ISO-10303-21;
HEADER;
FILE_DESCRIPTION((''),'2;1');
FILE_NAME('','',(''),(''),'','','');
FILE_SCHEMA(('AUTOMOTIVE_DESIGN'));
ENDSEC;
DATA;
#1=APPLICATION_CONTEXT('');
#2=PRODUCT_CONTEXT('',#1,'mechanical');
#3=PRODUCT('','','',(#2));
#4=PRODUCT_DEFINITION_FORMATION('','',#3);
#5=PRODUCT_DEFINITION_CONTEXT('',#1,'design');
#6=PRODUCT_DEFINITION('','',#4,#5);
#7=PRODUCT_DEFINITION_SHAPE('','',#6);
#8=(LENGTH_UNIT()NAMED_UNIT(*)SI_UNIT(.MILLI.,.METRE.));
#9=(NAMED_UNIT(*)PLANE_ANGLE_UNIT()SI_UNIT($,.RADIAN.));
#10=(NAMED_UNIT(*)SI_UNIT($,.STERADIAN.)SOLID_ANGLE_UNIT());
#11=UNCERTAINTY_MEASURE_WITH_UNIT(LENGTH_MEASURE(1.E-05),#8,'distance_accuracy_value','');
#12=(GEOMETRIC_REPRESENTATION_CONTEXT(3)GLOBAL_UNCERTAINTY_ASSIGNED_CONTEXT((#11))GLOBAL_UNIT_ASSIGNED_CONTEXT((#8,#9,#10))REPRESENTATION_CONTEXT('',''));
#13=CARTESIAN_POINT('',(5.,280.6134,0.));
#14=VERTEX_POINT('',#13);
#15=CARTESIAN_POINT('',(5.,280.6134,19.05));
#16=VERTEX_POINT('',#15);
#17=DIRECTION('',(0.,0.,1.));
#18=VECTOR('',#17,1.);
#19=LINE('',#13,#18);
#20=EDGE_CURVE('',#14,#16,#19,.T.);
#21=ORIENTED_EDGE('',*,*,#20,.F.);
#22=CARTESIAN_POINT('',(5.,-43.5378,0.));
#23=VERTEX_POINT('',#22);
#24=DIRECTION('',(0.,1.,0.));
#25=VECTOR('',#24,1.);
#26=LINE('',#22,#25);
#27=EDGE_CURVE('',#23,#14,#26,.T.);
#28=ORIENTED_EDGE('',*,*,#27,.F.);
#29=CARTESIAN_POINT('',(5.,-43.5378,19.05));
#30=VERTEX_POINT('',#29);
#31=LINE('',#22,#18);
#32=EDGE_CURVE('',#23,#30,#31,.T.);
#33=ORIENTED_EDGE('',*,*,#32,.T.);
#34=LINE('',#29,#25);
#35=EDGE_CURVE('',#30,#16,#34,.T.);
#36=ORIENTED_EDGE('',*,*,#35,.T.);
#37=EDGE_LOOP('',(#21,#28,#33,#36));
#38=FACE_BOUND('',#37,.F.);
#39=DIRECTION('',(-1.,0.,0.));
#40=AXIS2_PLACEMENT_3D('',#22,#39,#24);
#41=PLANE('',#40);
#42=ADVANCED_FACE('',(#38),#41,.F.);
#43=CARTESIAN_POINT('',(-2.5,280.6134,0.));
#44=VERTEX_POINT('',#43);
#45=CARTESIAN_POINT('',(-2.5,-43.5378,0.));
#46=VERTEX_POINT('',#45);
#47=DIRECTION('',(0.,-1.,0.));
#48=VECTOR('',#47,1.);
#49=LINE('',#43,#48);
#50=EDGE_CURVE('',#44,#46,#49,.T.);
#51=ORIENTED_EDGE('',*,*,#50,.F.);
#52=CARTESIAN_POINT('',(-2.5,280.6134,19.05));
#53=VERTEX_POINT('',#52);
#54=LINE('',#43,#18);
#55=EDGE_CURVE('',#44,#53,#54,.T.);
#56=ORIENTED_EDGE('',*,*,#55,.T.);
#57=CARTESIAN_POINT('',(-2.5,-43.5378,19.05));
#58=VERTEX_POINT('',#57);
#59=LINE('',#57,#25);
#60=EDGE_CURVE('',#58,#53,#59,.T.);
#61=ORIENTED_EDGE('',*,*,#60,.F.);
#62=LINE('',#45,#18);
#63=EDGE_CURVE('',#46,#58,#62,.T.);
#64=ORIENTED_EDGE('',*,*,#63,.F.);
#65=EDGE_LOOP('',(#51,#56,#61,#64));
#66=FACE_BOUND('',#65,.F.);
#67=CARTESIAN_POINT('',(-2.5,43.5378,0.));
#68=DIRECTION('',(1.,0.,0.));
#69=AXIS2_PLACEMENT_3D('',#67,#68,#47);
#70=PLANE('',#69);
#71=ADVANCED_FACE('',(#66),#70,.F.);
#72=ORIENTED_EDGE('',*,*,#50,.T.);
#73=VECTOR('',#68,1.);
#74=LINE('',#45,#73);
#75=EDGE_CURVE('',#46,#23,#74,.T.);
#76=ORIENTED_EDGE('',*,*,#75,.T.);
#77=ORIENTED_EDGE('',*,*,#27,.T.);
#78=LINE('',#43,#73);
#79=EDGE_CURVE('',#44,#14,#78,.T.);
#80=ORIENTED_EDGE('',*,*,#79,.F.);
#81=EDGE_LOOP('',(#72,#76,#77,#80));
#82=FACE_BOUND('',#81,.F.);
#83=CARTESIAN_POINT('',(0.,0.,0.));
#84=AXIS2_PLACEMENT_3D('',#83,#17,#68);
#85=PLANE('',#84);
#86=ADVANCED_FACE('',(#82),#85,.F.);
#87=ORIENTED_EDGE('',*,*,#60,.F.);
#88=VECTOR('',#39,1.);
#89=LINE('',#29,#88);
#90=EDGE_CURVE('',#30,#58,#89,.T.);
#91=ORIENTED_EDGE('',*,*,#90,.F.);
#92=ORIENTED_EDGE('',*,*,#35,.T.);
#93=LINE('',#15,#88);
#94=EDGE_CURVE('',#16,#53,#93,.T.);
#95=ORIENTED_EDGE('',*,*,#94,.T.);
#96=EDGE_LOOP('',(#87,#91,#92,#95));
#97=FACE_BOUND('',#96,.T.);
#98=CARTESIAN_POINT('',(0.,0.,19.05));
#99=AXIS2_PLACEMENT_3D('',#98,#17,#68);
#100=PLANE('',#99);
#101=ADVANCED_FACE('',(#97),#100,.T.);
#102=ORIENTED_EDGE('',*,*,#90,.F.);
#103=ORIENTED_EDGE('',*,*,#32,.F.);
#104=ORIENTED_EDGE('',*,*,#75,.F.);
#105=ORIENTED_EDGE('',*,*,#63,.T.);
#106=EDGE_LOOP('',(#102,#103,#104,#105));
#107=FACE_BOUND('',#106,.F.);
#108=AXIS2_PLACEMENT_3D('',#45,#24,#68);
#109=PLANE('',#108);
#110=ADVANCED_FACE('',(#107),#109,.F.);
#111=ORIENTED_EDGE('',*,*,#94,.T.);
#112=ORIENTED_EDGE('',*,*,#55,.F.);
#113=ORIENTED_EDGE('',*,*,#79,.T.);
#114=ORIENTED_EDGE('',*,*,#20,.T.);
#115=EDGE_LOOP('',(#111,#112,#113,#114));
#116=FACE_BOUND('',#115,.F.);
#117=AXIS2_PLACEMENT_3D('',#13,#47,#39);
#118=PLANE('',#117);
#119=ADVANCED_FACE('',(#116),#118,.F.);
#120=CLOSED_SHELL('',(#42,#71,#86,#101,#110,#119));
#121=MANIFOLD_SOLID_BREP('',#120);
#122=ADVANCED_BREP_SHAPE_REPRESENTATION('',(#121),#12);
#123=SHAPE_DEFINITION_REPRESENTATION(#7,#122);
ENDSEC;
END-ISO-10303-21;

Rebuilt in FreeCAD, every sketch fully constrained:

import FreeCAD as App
import Part
import Sketcher
Q = App.Units.Quantity


def add_polygon(sketch, points):
    """Adds a closed chain of lines whose ends are joined by coincident constraints."""
    first, n = sketch.GeometryCount, len(points)
    for a, b in zip(points, points[1:] + points[:1]):
        sketch.addGeometry(Part.LineSegment(App.Vector(*a, 0), App.Vector(*b, 0)), False)
    for i in range(n):
        sketch.addConstraint(Sketcher.Constraint("Coincident", first + i, 2, first + (i + 1) % n, 1))

doc = App.newDocument("Part")
body = doc.addObject("PartDesign::Body", "Body")

# Sketch on XY plane
sketch1 = body.newObject("Sketcher::SketchObject", "Sketch")
sketch1.AttachmentSupport = (doc.getObject("XY_Plane"), [""])
sketch1.MapMode = "FlatFace"
add_polygon(sketch1, [(-2, -44), (5, -44), (5, 281), (-2, 281)])  # lines 0-3
sketch1.addConstraint(Sketcher.Constraint("Horizontal", 0))
sketch1.addConstraint(Sketcher.Constraint("Vertical", 1))
sketch1.addConstraint(Sketcher.Constraint("Horizontal", 2))
sketch1.addConstraint(Sketcher.Constraint("Vertical", 3))
sketch1.addConstraint(Sketcher.Constraint("DistanceX", 0, 1, 0, 2, Q("7.5 mm")))
sketch1.addConstraint(Sketcher.Constraint("DistanceX", -1, 1, 0, 2, Q("5 mm")))
sketch1.addConstraint(Sketcher.Constraint("DistanceY", 1, 1, 1, 2, Q("324.1512 mm")))
sketch1.addConstraint(Sketcher.Constraint("DistanceY", 0, 2, -1, 1, Q("43.5378 mm")))
pad1 = body.newObject("PartDesign::Pad", "Pad")
pad1.Profile = sketch1
pad1.Length = 19.05

doc.recompute()
